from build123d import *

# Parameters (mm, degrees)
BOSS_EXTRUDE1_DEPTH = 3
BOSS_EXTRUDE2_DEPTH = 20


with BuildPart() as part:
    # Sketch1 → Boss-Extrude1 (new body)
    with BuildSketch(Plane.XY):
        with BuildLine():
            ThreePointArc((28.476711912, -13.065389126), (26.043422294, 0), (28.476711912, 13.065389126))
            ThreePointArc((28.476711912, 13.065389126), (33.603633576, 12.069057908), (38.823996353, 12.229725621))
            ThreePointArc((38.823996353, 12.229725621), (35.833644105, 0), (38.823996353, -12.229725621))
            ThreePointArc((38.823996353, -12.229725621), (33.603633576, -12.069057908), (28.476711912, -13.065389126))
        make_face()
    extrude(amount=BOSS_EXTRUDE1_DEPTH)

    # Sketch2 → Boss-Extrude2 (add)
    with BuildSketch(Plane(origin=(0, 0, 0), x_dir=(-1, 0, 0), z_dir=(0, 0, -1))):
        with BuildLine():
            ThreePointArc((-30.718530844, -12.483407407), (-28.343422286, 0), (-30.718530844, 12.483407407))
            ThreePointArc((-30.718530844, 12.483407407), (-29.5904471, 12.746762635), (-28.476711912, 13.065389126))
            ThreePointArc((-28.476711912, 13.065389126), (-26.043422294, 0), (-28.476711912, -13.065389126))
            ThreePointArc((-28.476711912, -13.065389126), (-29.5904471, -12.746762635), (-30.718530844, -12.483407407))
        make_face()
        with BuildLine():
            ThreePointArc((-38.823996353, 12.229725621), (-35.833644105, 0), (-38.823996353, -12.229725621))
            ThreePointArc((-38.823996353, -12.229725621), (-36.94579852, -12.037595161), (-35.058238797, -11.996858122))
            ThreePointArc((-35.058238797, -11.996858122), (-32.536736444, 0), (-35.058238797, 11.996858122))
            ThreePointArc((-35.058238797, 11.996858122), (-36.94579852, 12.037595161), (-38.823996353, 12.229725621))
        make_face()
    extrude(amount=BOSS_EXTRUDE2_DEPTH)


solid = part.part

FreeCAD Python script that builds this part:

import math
import FreeCAD as App
import Part
import Sketcher
from FreeCAD import Vector
Q = App.Units.Quantity

doc = App.newDocument("Part")
body = doc.addObject("PartDesign::Body", "Body")

# Sketch on XY plane
sketch1 = body.newObject("Sketcher::SketchObject", "Sketch")
sketch1.AttachmentSupport = (doc.getObject("XY_Plane"), [""])
sketch1.MapMode = "FlatFace"
sketch1.addGeometry([
    Part.ArcOfCircle(Part.Circle(Vector(62, 0, 0), Vector(0, 0, 1), 36), math.radians(159), math.radians(201)),
    Part.ArcOfCircle(Part.Circle(Vector(35, -35, 0), Vector(0, 0, 1), 24), math.radians(82), math.radians(107)),
    Part.ArcOfCircle(Part.Circle(Vector(62, 0, 0), Vector(0, 0, 1), 27), math.radians(153), math.radians(207)),
    Part.ArcOfCircle(Part.Circle(Vector(35, 35, 0), Vector(0, 0, 1), 24), math.radians(-107), math.radians(-82)),
], False)
sketch1.addConstraint([
    Sketcher.Constraint("Coincident", 0, 2, 1, 2),
    Sketcher.Constraint("Coincident", 1, 1, 2, 2),
    Sketcher.Constraint("Coincident", 2, 1, 3, 2),
    Sketcher.Constraint("Coincident", 3, 1, 0, 1),
    Sketcher.Constraint("Coincident", 2, 3, 0, 3),
    Sketcher.Constraint("Equal", 1, 3),
    Sketcher.Constraint("Symmetric", 1, 3, 3, 3, -1),
    Sketcher.Constraint("PointOnObject", 0, 3, -1),
    Sketcher.Constraint("Radius", 1, Q("23.5 mm")),
    Sketcher.Constraint("Radius", 2, Q("26.503298 mm")),
    Sketcher.Constraint("Radius", 0, Q("36.29352 mm")),
    Sketcher.Constraint("DistanceX", -1, 1, 0, 2, Q("28.476712 mm")),
    Sketcher.Constraint("DistanceY", 0, 2, -1, 1, Q("13.065389 mm")),
    Sketcher.Constraint("DistanceX", 1, 3, 0, 3, Q("26.84157 mm")),
])
pad1 = body.newObject("PartDesign::Pad", "Pad")
pad1.Profile = sketch1
pad1.Length = 3

# Sketch on XY plane
sketch2 = body.newObject("Sketcher::SketchObject", "Sketch001")
sketch2.AttachmentSupport = (doc.getObject("XY_Plane"), [""])
sketch2.MapMode = "FlatFace"
sketch2.addGeometry([
    Part.ArcOfCircle(Part.Circle(Vector(62.3, 0, 0), Vector(0, 0, 1), 34), math.radians(158), math.radians(202)),  # 0
    Part.ArcOfCircle(Part.Circle(Vector(35.5, -35.5, 0), Vector(0, 0, 1), 23.5), math.radians(101.73), math.radians(107.38)),  # 1
    Part.ArcOfCircle(Part.Circle(Vector(62.3, 0, 0), Vector(0, 0, 1), 36.3), math.radians(159), math.radians(201)),  # 2
    Part.ArcOfCircle(Part.Circle(Vector(35.5, 35.5, 0), Vector(0, 0, 1), 23.5), math.radians(-107.38), math.radians(-101.73)),  # 3
    Part.ArcOfCircle(Part.Circle(Vector(62.3, 0, 0), Vector(0, 0, 1), 26.5), math.radians(153), math.radians(207)),  # 4
    Part.ArcOfCircle(Part.Circle(Vector(35.5, -35.5, 0), Vector(0, 0, 1), 23.5), math.radians(81.86), math.radians(91.07)),  # 5
    Part.ArcOfCircle(Part.Circle(Vector(62.3, 0, 0), Vector(0, 0, 1), 29.8), math.radians(156), math.radians(204)),  # 6
    Part.ArcOfCircle(Part.Circle(Vector(35.5, 35.5, 0), Vector(0, 0, 1), 23.5), math.radians(-91.07), math.radians(-81.86)),  # 7
], False)
sketch2.addConstraint([
    Sketcher.Constraint("Coincident", 0, 2, 1, 1),
    Sketcher.Constraint("Coincident", 1, 2, 2, 2),
    Sketcher.Constraint("Coincident", 2, 1, 3, 1),
    Sketcher.Constraint("Coincident", 3, 2, 0, 1),
    Sketcher.Constraint("Coincident", 4, 2, 5, 1),
    Sketcher.Constraint("Coincident", 5, 2, 6, 2),
    Sketcher.Constraint("Coincident", 6, 1, 7, 1),
    Sketcher.Constraint("Coincident", 7, 2, 4, 1),
    Sketcher.Constraint("Coincident", 2, 3, 0, 3),
    Sketcher.Constraint("Coincident", 4, 3, 0, 3),
    Sketcher.Constraint("Coincident", 5, 3, 1, 3),
    Sketcher.Constraint("Coincident", 6, 3, 0, 3),
    Sketcher.Constraint("Coincident", 7, 3, 3, 3),
    Sketcher.Constraint("Equal", 1, 3),
    Sketcher.Constraint("Equal", 3, 5),
    Sketcher.Constraint("Equal", 5, 7),
    Sketcher.Constraint("Symmetric", 1, 3, 3, 3, -1),
    Sketcher.Constraint("PointOnObject", 0, 3, -1),
    Sketcher.Constraint("Radius", 1, Q("23.5 mm")),
    Sketcher.Constraint("Radius", 4, Q("26.503298 mm")),
    Sketcher.Constraint("Radius", 0, Q("33.99352 mm")),
    Sketcher.Constraint("Radius", 2, Q("36.29352 mm")),
    Sketcher.Constraint("Radius", 6, Q("29.800206 mm")),
    Sketcher.Constraint("DistanceY", 1, 3, -1, 1, Q("35.492792 mm")),
    Sketcher.Constraint("DistanceX", -1, 1, 0, 2, Q("30.718531 mm")),
    Sketcher.Constraint("DistanceY", 1, 2, -1, 1, Q("13.065389 mm")),
])
pad2 = body.newObject("PartDesign::Pad", "Pad001")
pad2.Profile = sketch2
pad2.Length = 20
pad2.Reversed = True

doc.recompute()
